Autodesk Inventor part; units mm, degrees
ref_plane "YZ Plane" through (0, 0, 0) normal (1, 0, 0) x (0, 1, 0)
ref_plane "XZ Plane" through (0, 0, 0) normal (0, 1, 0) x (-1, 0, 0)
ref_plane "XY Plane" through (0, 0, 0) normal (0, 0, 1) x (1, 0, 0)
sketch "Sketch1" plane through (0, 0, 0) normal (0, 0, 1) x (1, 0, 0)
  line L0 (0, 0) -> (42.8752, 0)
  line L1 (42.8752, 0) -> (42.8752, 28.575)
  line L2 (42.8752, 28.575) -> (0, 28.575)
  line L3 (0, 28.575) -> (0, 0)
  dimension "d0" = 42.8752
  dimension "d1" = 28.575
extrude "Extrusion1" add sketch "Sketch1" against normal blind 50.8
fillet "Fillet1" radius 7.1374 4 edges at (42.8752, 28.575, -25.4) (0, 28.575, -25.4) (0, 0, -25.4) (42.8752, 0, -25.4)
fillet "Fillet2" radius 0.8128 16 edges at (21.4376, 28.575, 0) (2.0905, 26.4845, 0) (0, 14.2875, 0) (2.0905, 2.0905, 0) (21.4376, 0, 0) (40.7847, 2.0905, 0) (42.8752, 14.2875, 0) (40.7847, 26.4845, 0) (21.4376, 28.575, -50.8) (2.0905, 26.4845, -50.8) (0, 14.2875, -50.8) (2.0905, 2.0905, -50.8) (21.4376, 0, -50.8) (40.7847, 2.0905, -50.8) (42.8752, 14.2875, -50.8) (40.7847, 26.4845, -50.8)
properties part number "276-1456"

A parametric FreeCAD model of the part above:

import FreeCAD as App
import Part
import Sketcher
Q = App.Units.Quantity


def edges_at(feature, points):
    """Names of the edges that pass closest to the given points."""
    edges = feature.Shape.Edges
    near = lambda p: min(range(len(edges)), key=lambda i: edges[i].distToShape(Part.Vertex(*p))[0])
    return sorted({f"Edge{near(p) + 1}" for p in points})


def add_polygon(sketch, points):
    """Adds a closed chain of lines whose ends are joined by coincident constraints."""
    first, n = sketch.GeometryCount, len(points)
    for a, b in zip(points, points[1:] + points[:1]):
        sketch.addGeometry(Part.LineSegment(App.Vector(*a, 0), App.Vector(*b, 0)), False)
    for i in range(n):
        sketch.addConstraint(Sketcher.Constraint("Coincident", first + i, 2, first + (i + 1) % n, 1))

doc = App.newDocument("Part")
body = doc.addObject("PartDesign::Body", "Body")

# Sketch on XY plane
sketch1 = body.newObject("Sketcher::SketchObject", "Sketch")
sketch1.AttachmentSupport = (doc.getObject("XY_Plane"), [""])
sketch1.MapMode = "FlatFace"
add_polygon(sketch1, [(0, 29), (0, 0), (43, 0), (43, 29)])  # lines 0-3
sketch1.addConstraint(Sketcher.Constraint("Vertical", 0))
sketch1.addConstraint(Sketcher.Constraint("Horizontal", 1))
sketch1.addConstraint(Sketcher.Constraint("Vertical", 2))
sketch1.addConstraint(Sketcher.Constraint("Horizontal", 3))
sketch1.addConstraint(Sketcher.Constraint("Coincident", 0, 2, -1, 1))
sketch1.addConstraint(Sketcher.Constraint("DistanceX", 1, 1, 1, 2, Q("1.688 in")))
sketch1.addConstraint(Sketcher.Constraint("DistanceY", 0, 2, 0, 1, Q("1.125 in")))
pad1 = body.newObject("PartDesign::Pad", "Pad")
pad1.Profile = sketch1
pad1.Length = Q("2 in")
pad1.Reversed = True
doc.recompute()

fillet = body.newObject("PartDesign::Fillet", "Fillet")
fillet.Base = (pad1, edges_at(pad1, [
    (42.875, 28.575, -25.4),
    (0, 28.575, -25.4),
    (0, 0, -25.4),
    (42.875, 0, -25.4),
]))
fillet.Radius = Q("0.281 in")
doc.recompute()

fillet2 = body.newObject("PartDesign::Fillet", "Fillet001")
fillet2.Base = (fillet, edges_at(fillet, [
    (21.438, 28.575, 0),
    (2.091, 26.485, 0),
    (0, 14.287, 0),
    (2.091, 2.091, 0),
    (21.438, 0, 0),
    (40.785, 2.091, 0),
    (42.875, 14.287, 0),
    (40.785, 26.485, 0),
    (21.438, 28.575, -50.8),
    (2.091, 26.485, -50.8),
    (0, 14.287, -50.8),
    (2.091, 2.091, -50.8),
    (21.438, 0, -50.8),
    (40.785, 2.091, -50.8),
    (42.875, 14.287, -50.8),
    (40.785, 26.485, -50.8),
]))
fillet2.Radius = Q("0.032 in")

doc.recompute()
